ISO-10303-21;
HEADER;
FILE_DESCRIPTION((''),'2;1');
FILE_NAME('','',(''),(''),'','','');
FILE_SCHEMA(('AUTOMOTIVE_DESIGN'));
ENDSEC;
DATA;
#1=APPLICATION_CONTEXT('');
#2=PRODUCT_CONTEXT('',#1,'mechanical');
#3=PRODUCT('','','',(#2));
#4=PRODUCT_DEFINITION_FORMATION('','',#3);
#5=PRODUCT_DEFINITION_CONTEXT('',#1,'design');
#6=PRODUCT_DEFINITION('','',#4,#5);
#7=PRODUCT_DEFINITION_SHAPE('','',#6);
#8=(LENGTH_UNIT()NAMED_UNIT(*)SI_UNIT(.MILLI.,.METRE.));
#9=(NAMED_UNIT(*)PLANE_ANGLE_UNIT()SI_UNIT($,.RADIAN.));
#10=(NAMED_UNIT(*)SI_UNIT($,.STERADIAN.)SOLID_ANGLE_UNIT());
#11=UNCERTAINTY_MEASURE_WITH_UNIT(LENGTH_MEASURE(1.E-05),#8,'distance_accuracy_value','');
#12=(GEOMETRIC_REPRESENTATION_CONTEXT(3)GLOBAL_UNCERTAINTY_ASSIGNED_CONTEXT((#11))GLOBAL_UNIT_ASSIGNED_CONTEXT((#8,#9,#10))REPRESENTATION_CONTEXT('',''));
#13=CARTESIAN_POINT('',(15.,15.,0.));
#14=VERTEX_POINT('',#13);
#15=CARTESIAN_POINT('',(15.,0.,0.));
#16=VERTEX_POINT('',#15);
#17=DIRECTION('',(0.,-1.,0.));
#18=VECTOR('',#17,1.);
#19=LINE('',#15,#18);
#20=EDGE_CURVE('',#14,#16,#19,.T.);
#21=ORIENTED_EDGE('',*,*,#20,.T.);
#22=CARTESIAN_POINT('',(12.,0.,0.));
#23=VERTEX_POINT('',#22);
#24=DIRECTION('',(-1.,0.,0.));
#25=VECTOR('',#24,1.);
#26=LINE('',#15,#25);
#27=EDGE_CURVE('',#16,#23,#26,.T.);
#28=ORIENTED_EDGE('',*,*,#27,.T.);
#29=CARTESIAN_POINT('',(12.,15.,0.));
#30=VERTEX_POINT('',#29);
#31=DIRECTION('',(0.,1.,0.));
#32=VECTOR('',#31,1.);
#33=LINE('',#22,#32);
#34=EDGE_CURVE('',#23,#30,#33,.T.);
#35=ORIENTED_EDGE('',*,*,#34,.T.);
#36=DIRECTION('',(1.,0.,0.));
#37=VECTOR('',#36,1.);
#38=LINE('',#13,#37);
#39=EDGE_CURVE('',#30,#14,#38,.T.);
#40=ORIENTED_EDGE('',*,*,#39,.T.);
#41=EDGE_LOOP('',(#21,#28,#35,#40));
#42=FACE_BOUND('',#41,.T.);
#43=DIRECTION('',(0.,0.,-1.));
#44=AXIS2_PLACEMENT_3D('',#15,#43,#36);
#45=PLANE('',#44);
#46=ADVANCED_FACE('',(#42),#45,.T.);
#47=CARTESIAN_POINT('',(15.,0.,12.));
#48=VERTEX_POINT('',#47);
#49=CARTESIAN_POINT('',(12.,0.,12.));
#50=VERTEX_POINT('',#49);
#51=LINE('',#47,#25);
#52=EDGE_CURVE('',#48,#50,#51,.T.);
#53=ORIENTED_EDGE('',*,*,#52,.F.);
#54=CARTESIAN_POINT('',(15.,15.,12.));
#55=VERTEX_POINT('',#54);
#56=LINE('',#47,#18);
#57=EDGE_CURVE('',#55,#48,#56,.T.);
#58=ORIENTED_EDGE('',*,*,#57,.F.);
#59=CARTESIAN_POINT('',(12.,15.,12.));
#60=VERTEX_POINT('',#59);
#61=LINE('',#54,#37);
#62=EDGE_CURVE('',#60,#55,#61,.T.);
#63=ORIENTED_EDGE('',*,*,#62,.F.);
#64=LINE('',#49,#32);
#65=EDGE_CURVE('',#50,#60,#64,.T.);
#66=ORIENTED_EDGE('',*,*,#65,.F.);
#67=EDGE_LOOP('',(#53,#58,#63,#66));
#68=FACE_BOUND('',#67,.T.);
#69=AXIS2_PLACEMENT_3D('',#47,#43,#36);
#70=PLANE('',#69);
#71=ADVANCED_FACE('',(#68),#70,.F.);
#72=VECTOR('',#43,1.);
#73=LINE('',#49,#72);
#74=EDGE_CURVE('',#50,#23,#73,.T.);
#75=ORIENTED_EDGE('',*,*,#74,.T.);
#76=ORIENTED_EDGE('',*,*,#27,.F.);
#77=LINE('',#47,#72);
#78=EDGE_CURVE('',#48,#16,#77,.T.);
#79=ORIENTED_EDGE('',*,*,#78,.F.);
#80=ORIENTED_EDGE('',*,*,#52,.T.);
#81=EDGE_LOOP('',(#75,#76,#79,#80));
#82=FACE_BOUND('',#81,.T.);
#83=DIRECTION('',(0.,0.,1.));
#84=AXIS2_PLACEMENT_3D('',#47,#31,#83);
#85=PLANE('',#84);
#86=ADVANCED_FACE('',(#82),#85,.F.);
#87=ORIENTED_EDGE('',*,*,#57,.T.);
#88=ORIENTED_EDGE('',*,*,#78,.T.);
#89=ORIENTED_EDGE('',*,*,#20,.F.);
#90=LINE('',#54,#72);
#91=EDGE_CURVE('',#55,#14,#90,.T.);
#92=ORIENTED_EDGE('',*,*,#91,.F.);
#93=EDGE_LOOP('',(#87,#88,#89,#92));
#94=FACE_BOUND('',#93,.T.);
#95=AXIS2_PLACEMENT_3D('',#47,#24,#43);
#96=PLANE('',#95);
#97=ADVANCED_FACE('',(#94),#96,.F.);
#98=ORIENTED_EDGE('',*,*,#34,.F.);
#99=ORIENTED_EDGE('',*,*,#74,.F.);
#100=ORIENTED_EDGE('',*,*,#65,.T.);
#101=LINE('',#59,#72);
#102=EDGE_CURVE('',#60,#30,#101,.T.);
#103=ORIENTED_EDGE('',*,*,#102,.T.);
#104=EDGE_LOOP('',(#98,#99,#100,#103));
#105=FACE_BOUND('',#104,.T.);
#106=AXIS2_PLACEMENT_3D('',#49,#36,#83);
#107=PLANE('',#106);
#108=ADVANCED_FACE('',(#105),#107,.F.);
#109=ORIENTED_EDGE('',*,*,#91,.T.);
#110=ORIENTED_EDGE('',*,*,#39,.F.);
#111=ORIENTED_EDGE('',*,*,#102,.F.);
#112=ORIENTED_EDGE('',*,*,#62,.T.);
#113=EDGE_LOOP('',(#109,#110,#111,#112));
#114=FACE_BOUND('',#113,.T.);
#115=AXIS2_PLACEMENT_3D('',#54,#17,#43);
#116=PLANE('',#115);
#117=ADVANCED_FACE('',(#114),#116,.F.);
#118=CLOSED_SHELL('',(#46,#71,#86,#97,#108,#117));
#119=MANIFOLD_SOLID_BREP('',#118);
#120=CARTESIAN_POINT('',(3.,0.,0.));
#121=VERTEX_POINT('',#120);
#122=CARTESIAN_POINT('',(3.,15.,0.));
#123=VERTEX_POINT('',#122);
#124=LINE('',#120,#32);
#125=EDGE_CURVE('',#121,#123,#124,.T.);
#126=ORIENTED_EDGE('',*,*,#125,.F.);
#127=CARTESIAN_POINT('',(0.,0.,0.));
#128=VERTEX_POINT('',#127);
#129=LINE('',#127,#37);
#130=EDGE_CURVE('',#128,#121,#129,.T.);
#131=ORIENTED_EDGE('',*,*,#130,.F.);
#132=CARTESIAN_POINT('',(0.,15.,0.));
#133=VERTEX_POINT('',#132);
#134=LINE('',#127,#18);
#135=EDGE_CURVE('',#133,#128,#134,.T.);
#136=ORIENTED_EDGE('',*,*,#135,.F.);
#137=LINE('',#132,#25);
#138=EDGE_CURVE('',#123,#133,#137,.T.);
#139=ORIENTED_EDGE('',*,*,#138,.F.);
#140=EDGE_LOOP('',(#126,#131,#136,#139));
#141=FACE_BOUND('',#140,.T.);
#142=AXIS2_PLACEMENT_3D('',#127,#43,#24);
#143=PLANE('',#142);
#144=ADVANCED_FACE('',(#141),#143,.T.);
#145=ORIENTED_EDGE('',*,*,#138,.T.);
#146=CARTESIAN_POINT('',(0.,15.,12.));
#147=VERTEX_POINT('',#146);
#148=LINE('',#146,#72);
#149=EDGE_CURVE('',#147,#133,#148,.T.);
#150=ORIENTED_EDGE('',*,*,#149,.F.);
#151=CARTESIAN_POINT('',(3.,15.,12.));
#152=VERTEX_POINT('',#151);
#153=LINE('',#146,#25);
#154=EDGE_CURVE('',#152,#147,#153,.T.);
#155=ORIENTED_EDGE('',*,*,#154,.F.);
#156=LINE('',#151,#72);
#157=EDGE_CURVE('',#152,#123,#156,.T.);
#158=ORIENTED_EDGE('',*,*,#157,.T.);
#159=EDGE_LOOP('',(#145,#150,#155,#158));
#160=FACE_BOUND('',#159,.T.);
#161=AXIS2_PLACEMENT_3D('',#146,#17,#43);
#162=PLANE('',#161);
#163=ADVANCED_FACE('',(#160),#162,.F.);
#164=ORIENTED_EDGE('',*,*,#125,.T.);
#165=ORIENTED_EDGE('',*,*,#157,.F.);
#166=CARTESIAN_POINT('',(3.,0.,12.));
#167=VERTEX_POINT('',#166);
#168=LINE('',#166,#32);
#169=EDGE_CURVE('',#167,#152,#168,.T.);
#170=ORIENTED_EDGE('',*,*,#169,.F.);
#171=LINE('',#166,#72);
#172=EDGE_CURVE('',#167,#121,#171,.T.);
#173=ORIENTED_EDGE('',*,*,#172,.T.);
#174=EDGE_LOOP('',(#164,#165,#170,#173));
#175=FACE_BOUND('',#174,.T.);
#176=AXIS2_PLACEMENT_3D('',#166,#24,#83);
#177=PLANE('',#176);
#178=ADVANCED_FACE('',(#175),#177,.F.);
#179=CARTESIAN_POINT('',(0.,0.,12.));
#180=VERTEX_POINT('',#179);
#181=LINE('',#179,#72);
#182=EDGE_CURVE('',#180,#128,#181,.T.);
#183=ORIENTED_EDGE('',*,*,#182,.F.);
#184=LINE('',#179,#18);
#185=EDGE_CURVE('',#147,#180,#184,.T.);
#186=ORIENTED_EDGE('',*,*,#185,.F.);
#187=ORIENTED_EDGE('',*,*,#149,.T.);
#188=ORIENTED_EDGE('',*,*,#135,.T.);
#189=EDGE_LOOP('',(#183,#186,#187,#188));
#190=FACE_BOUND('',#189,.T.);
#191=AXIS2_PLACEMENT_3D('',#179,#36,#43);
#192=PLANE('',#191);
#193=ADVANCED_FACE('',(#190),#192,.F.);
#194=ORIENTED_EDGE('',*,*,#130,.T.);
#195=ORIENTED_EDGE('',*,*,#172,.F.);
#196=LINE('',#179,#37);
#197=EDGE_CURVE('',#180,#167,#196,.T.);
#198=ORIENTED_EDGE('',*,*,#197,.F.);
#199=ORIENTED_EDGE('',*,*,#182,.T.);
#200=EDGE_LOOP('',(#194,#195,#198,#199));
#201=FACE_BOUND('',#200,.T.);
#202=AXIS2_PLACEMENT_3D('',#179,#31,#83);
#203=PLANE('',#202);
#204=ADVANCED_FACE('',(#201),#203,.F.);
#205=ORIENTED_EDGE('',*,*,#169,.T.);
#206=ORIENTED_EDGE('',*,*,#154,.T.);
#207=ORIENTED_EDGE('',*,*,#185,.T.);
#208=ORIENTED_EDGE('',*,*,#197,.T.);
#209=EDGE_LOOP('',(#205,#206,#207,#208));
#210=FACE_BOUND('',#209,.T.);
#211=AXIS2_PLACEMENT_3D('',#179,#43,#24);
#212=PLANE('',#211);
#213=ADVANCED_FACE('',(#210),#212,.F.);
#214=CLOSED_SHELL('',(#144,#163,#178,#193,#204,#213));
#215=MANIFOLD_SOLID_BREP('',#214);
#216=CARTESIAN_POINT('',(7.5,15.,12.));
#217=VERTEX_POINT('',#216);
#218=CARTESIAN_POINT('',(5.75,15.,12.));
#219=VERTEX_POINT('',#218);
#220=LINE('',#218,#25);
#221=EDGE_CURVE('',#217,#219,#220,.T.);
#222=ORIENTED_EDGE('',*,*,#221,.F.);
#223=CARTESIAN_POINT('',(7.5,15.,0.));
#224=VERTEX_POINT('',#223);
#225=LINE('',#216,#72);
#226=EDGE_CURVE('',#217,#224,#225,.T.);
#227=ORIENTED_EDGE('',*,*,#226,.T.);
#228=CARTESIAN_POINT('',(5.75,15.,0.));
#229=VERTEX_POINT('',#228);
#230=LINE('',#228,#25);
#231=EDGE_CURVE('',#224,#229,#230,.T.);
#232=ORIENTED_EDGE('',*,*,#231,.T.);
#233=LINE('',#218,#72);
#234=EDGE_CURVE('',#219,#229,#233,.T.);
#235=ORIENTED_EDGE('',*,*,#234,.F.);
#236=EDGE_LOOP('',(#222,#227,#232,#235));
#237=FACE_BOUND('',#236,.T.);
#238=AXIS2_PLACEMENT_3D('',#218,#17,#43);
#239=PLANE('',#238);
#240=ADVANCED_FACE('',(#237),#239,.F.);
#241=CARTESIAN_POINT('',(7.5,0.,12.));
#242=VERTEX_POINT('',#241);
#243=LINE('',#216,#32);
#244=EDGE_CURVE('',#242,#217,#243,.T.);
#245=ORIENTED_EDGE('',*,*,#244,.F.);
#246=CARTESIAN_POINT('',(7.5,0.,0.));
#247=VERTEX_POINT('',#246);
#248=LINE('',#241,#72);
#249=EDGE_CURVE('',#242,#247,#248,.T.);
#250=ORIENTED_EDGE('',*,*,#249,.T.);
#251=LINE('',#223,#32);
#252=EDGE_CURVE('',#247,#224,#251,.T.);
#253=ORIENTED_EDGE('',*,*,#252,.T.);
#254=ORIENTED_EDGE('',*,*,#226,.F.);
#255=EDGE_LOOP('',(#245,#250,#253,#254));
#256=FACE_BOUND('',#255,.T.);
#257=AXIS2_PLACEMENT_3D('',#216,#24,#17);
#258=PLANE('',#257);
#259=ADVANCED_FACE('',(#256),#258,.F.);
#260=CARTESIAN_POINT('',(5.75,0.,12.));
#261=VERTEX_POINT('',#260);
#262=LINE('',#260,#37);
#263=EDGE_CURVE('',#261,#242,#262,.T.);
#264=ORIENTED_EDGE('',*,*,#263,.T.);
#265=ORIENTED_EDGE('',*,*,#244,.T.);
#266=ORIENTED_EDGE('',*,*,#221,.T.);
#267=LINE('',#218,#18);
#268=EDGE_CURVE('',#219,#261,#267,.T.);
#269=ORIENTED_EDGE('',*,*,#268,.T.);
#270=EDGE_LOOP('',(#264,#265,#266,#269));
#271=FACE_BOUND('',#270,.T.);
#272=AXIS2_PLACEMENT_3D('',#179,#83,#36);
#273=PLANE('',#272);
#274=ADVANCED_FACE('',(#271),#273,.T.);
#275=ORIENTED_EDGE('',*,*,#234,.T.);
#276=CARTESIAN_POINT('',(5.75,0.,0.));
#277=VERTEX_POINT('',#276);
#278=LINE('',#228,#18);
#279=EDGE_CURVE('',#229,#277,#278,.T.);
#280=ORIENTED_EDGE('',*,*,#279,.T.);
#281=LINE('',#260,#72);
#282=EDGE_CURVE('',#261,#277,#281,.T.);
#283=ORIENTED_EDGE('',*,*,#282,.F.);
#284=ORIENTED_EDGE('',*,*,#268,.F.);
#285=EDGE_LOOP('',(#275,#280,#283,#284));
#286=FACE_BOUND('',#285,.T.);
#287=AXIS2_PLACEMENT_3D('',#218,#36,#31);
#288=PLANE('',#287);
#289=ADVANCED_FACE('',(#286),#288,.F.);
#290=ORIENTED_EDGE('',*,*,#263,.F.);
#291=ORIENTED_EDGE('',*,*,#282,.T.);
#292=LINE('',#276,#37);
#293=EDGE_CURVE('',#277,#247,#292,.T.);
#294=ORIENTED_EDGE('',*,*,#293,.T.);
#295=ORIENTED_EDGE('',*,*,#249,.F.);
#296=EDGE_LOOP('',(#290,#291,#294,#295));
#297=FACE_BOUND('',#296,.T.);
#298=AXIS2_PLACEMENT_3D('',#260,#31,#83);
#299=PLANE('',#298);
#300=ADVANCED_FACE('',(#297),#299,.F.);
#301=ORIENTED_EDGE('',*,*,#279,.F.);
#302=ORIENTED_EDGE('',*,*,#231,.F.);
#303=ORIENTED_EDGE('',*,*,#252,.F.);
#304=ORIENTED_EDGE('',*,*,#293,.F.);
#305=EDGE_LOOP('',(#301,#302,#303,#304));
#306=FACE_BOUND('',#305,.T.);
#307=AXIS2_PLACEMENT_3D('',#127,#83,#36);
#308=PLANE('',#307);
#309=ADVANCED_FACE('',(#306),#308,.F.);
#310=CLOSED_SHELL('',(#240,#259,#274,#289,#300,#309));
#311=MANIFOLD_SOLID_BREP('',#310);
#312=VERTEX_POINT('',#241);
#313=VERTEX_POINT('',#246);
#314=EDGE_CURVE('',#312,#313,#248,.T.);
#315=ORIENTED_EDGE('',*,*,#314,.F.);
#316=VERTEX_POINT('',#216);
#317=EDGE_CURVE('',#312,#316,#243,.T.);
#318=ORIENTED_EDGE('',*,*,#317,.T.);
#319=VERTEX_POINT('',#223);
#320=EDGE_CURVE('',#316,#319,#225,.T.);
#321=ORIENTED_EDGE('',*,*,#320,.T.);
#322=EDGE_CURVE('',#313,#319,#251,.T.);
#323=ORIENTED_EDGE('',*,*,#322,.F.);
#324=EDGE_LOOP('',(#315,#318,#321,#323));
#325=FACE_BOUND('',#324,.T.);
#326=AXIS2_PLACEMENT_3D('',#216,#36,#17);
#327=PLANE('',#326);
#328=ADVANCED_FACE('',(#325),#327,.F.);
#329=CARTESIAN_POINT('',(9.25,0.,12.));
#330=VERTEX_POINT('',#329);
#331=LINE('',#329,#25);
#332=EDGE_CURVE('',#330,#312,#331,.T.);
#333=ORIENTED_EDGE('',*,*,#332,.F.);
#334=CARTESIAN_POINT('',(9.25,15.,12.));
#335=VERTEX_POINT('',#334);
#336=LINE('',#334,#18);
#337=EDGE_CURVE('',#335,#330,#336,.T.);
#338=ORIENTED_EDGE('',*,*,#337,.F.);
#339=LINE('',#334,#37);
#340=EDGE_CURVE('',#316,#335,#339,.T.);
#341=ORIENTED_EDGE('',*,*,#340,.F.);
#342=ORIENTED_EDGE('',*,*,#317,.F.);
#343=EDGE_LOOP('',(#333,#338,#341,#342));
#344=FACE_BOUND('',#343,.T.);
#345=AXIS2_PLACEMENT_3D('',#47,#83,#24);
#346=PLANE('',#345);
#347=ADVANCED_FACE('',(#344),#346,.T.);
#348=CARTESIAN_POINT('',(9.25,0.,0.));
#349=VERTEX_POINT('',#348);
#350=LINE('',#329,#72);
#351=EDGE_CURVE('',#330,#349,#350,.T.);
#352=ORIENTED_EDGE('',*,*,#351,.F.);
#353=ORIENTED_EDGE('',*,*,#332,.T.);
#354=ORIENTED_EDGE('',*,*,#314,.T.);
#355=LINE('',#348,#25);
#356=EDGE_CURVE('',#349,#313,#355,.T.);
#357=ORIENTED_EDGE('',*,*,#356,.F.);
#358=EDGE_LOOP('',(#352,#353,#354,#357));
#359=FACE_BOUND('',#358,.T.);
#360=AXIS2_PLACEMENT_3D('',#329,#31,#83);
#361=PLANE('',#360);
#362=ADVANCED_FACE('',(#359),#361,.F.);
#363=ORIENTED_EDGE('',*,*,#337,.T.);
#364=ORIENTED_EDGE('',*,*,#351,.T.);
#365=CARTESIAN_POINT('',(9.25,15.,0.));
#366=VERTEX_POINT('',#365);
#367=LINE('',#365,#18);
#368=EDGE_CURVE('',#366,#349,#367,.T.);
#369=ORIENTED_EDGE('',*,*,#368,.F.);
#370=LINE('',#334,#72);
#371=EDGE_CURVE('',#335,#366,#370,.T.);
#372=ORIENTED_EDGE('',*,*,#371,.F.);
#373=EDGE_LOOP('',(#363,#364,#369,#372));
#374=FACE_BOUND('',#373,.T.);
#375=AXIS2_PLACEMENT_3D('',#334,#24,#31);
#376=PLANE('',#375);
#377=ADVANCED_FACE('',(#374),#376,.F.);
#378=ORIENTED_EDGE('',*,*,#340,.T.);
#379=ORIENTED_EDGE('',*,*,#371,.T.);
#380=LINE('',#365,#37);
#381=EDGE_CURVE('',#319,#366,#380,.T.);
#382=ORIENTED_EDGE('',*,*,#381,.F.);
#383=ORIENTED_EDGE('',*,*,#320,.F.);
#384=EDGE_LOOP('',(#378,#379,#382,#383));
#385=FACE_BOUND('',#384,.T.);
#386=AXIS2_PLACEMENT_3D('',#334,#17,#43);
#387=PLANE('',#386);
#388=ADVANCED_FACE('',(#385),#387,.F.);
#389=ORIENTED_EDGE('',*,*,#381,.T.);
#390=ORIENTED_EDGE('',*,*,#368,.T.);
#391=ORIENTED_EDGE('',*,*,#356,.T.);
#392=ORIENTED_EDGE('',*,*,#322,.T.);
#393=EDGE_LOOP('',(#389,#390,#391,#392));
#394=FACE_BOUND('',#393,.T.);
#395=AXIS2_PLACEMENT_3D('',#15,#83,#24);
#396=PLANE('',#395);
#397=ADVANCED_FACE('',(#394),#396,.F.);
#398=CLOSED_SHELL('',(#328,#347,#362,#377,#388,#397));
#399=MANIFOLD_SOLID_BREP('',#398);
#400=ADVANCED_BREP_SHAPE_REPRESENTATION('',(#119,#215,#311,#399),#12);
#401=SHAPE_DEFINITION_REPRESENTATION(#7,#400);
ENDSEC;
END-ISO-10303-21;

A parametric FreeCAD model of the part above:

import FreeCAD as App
import Part
import Sketcher

V = App.Vector
Q = App.Units.Quantity

doc = App.newDocument("Part")
body = doc.addObject("PartDesign::Body", "Body")

sketch1 = body.newObject("Sketcher::SketchObject", "Sketch")
sketch1.AttachmentSupport = (doc.getObject("XY_Plane"), [""])
sketch1.MapMode = "FlatFace"
sketch1.addGeometry(Part.LineSegment(V(0, 15, 0), V(0, 0, 0)), False)
sketch1.addGeometry(Part.LineSegment(V(0, 0, 0), V(3, 0, 0)), False)
sketch1.addGeometry(Part.LineSegment(V(3, 0, 0), V(3, 15, 0)), False)
sketch1.addGeometry(Part.LineSegment(V(3, 15, 0), V(0, 15, 0)), False)
sketch1.addConstraint(Sketcher.Constraint("Coincident", 0, 2, 1, 1))
sketch1.addConstraint(Sketcher.Constraint("Coincident", 1, 2, 2, 1))
sketch1.addConstraint(Sketcher.Constraint("Coincident", 2, 2, 3, 1))
sketch1.addConstraint(Sketcher.Constraint("Coincident", 3, 2, 0, 1))
sketch1.addConstraint(Sketcher.Constraint("Vertical", 0))
sketch1.addConstraint(Sketcher.Constraint("Horizontal", 1))
sketch1.addConstraint(Sketcher.Constraint("Vertical", 2))
sketch1.addConstraint(Sketcher.Constraint("Horizontal", 3))
sketch1.addConstraint(Sketcher.Constraint("Coincident", 0, 2, -1, 1))
sketch1.addConstraint(Sketcher.Constraint("DistanceX", 1, 1, 1, 2, Q("3 mm")))
sketch1.addConstraint(Sketcher.Constraint("DistanceY", 0, 2, 0, 1, Q("15 mm")))
pad1 = body.newObject("PartDesign::Pad", "Pad")
pad1.Profile = sketch1
pad1.Length = 12
body2 = doc.addObject("PartDesign::Body", "Body001")

sketch2 = body2.newObject("Sketcher::SketchObject", "Sketch001")
sketch2.AttachmentSupport = (doc.getObject("XY_Plane001"), [""])
sketch2.MapMode = "FlatFace"
sketch2.addGeometry(Part.LineSegment(V(5.75, 15, 0), V(5.75, 0, 0)), False)
sketch2.addGeometry(Part.LineSegment(V(5.75, 0, 0), V(7.5, 0, 0)), False)
sketch2.addGeometry(Part.LineSegment(V(7.5, 0, 0), V(7.5, 15, 0)), False)
sketch2.addGeometry(Part.LineSegment(V(7.5, 15, 0), V(5.75, 15, 0)), False)
sketch2.addConstraint(Sketcher.Constraint("Coincident", 0, 2, 1, 1))
sketch2.addConstraint(Sketcher.Constraint("Coincident", 1, 2, 2, 1))
sketch2.addConstraint(Sketcher.Constraint("Coincident", 2, 2, 3, 1))
sketch2.addConstraint(Sketcher.Constraint("Coincident", 3, 2, 0, 1))
sketch2.addConstraint(Sketcher.Constraint("Vertical", 0))
sketch2.addConstraint(Sketcher.Constraint("Horizontal", 1))
sketch2.addConstraint(Sketcher.Constraint("Vertical", 2))
sketch2.addConstraint(Sketcher.Constraint("Horizontal", 3))
sketch2.addConstraint(Sketcher.Constraint("PointOnObject", 0, 2, -1))
sketch2.addConstraint(Sketcher.Constraint("DistanceY", 0, 2, 0, 1, Q("15 mm")))
sketch2.addConstraint(Sketcher.Constraint("DistanceX", 1, 1, 1, 2, Q("1.75 mm")))
sketch2.addConstraint(Sketcher.Constraint("DistanceX", -1, 1, 1, 2, Q("7.5 mm")))
pad2 = body2.newObject("PartDesign::Pad", "Pad001")
pad2.Profile = sketch2
pad2.Length = 12
body3 = doc.addObject("PartDesign::Body", "Body002")
doc.recompute()

mirroring = doc.addObject("Part::Mirroring", "Mirroring")
mirroring.Source = body2
mirroring.Base = V(7.5, 15, 12)
mirroring.Normal = V(-1, 0, 0)
body3.BaseFeature = mirroring
doc.recompute()
body4 = doc.addObject("PartDesign::Body", "Body003")
doc.recompute()

mirroring2 = doc.addObject("Part::Mirroring", "Mirroring001")
mirroring2.Source = body
mirroring2.Base = V(7.5, 15, 12)
mirroring2.Normal = V(-1, 0, 0)
body4.BaseFeature = mirroring2
doc.recompute()
mirroring.Visibility = False
mirroring2.Visibility = False

doc.recompute()
